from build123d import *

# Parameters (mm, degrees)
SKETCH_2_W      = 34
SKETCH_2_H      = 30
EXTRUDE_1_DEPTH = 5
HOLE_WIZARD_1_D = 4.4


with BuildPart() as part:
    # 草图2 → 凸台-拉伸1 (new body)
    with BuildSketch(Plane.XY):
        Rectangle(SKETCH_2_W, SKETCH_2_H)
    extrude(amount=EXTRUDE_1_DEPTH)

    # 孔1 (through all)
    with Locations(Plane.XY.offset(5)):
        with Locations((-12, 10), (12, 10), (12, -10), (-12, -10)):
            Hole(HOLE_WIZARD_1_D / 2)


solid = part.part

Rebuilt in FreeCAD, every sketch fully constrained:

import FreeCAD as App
import Part
import Sketcher

doc = App.newDocument("Part")
body = doc.addObject("PartDesign::Body", "Body")

sketch1 = body.newObject("Sketcher::SketchObject", "Sketch")
sketch1.AttachmentSupport = (doc.getObject("XY_Plane"), [""])
sketch1.MapMode = "FlatFace"
sketch1.addGeometry(Part.LineSegment(App.Vector(-17, 15, 0), App.Vector(-17, -15, 0)), False)
sketch1.addGeometry(Part.LineSegment(App.Vector(-17, -15, 0), App.Vector(17, -15, 0)), False)
sketch1.addGeometry(Part.LineSegment(App.Vector(17, -15, 0), App.Vector(17, 15, 0)), False)
sketch1.addGeometry(Part.LineSegment(App.Vector(17, 15, 0), App.Vector(-17, 15, 0)), False)
sketch1.addConstraint(Sketcher.Constraint("Coincident", 0, 2, 1, 1))
sketch1.addConstraint(Sketcher.Constraint("Coincident", 1, 2, 2, 1))
sketch1.addConstraint(Sketcher.Constraint("Coincident", 2, 2, 3, 1))
sketch1.addConstraint(Sketcher.Constraint("Coincident", 3, 2, 0, 1))
sketch1.addConstraint(Sketcher.Constraint("Vertical", 0))
sketch1.addConstraint(Sketcher.Constraint("Horizontal", 1))
sketch1.addConstraint(Sketcher.Constraint("Vertical", 2))
sketch1.addConstraint(Sketcher.Constraint("Horizontal", 3))
sketch1.addConstraint(Sketcher.Constraint("Symmetric", 0, 2, 2, 2, -1, 1))
sketch1.addConstraint(Sketcher.Constraint("DistanceX", 1, 1, 1, 2, 34.0))
sketch1.addConstraint(Sketcher.Constraint("DistanceY", 0, 2, 0, 1, 30.0))
pad1 = body.newObject("PartDesign::Pad", "Pad")
pad1.Profile = sketch1
pad1.Length = 5

sketch2 = body.newObject("Sketcher::SketchObject", "Sketch001")
sketch2.AttachmentSupport = (doc.getObject("XY_Plane"), [""])
sketch2.MapMode = "FlatFace"
sketch2.AttachmentOffset = App.Placement(App.Vector(0, 0, 5), App.Rotation())
sketch2.addGeometry(Part.Circle(App.Vector(-12, 10, 0), App.Vector(0, 0, 1), 2.2), False)
sketch2.addGeometry(Part.Circle(App.Vector(12, 10, 0), App.Vector(0, 0, 1), 2.2), False)
sketch2.addGeometry(Part.Circle(App.Vector(12, -10, 0), App.Vector(0, 0, 1), 2.2), False)
sketch2.addGeometry(Part.Circle(App.Vector(-12, -10, 0), App.Vector(0, 0, 1), 2.2), False)
sketch2.addConstraint(Sketcher.Constraint("Equal", 0, 1))
sketch2.addConstraint(Sketcher.Constraint("Equal", 1, 2))
sketch2.addConstraint(Sketcher.Constraint("Equal", 2, 3))
sketch2.addConstraint(Sketcher.Constraint("Symmetric", 0, 3, 2, 3, -1, 1))
sketch2.addConstraint(Sketcher.Constraint("Symmetric", 1, 3, 3, 3, -1, 1))
sketch2.addConstraint(Sketcher.Constraint("Symmetric", 0, 3, 1, 3, -2))
sketch2.addConstraint(Sketcher.Constraint("Diameter", 0, 4.4))
sketch2.addConstraint(Sketcher.Constraint("DistanceX", 0, 3, -1, 1, 12.0))
sketch2.addConstraint(Sketcher.Constraint("DistanceY", -1, 1, 0, 3, 10.0))
doc.recompute()
hole = body.newObject("PartDesign::Hole", "Hole")
hole.Profile = sketch2
hole.ThreadType = "None"
hole.Diameter = 4.4
hole.DepthType = "ThroughAll"

doc.recompute()
